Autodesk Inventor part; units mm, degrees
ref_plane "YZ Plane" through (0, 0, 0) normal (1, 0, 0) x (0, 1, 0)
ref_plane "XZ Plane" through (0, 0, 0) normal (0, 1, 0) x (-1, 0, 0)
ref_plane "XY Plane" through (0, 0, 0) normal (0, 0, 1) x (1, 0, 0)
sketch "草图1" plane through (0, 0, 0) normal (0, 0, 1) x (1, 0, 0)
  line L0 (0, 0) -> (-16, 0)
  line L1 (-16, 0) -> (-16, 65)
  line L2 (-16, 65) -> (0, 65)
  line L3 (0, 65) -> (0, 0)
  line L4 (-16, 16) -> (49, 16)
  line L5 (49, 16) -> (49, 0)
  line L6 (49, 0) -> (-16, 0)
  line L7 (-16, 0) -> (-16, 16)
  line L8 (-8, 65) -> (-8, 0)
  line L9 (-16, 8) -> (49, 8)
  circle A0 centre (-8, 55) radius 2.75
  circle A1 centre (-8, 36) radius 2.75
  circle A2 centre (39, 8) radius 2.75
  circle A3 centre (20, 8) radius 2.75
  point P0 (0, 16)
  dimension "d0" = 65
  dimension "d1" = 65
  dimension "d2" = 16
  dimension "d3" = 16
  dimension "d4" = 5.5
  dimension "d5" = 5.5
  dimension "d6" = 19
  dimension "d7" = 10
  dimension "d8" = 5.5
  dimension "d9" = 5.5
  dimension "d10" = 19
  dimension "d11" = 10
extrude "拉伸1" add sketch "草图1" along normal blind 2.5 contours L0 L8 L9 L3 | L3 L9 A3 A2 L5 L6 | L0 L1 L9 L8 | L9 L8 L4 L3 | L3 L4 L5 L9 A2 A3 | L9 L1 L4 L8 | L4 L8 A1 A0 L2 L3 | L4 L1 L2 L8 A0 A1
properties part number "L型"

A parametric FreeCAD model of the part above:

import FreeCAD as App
import Part
import Sketcher


def add_polygon(sketch, points):
    """Adds a closed chain of lines whose ends are joined by coincident constraints."""
    first, n = sketch.GeometryCount, len(points)
    for a, b in zip(points, points[1:] + points[:1]):
        sketch.addGeometry(Part.LineSegment(App.Vector(*a, 0), App.Vector(*b, 0)), False)
    for i in range(n):
        sketch.addConstraint(Sketcher.Constraint("Coincident", first + i, 2, first + (i + 1) % n, 1))

doc = App.newDocument("Part")
body = doc.addObject("PartDesign::Body", "Body")

# Sketch on XY plane
sketch1 = body.newObject("Sketcher::SketchObject", "Sketch")
sketch1.AttachmentSupport = (doc.getObject("XY_Plane"), [""])
sketch1.MapMode = "FlatFace"
add_polygon(sketch1, [(49, 0), (49, 16), (0, 16), (0, 65), (-16, 65), (-16, 0)])  # lines 0-5
sketch1.addGeometry(Part.Circle(App.Vector(20, 8, 0), App.Vector(0, 0, 1), 2.75), False)  # 6
sketch1.addGeometry(Part.Circle(App.Vector(39, 8, 0), App.Vector(0, 0, 1), 2.75), False)  # 7
sketch1.addGeometry(Part.Circle(App.Vector(-8, 36, 0), App.Vector(0, 0, 1), 2.75), False)  # 8
sketch1.addGeometry(Part.Circle(App.Vector(-8, 55, 0), App.Vector(0, 0, 1), 2.75), False)  # 9
sketch1.addConstraint([
    Sketcher.Constraint("Vertical", 0),
    Sketcher.Constraint("Horizontal", 1),
    Sketcher.Constraint("Vertical", 2),
    Sketcher.Constraint("Horizontal", 3),
    Sketcher.Constraint("Vertical", 4),
    Sketcher.Constraint("Horizontal", 5),
    Sketcher.Constraint("Equal", 6, 7),
    Sketcher.Constraint("Equal", 7, 8),
    Sketcher.Constraint("Equal", 8, 9),
    Sketcher.Constraint("PointOnObject", 1, 2, -2),
    Sketcher.Constraint("PointOnObject", 4, 2, -1),
    Sketcher.Constraint("Horizontal", 6, 3, 7, 3),
    Sketcher.Constraint("Vertical", 8, 3, 9, 3),
    Sketcher.Constraint("Equal", 3, 0),
    Sketcher.Constraint("Equal", 1, 2),
    Sketcher.Constraint("Diameter", 6, 5.5),
    Sketcher.Constraint("DistanceX", 3, 2, 3, 1, 16.0),
    Sketcher.Constraint("DistanceX", 5, 1, 5, 2, 65.0),
    Sketcher.Constraint("DistanceX", 6, 3, 7, 3, 19.0),
    Sketcher.Constraint("DistanceY", 8, 3, 9, 3, 19.0),
    Sketcher.Constraint("DistanceX", 7, 3, 0, 2, 10.0),
    Sketcher.Constraint("DistanceY", 9, 3, 2, 2, 10.0),
    Sketcher.Constraint("DistanceY", -1, 1, 6, 3, 8.0),
    Sketcher.Constraint("DistanceX", 8, 3, -1, 1, 8.0),
])
pad1 = body.newObject("PartDesign::Pad", "Pad")
pad1.Profile = sketch1
pad1.Length = 2.5

doc.recompute()
